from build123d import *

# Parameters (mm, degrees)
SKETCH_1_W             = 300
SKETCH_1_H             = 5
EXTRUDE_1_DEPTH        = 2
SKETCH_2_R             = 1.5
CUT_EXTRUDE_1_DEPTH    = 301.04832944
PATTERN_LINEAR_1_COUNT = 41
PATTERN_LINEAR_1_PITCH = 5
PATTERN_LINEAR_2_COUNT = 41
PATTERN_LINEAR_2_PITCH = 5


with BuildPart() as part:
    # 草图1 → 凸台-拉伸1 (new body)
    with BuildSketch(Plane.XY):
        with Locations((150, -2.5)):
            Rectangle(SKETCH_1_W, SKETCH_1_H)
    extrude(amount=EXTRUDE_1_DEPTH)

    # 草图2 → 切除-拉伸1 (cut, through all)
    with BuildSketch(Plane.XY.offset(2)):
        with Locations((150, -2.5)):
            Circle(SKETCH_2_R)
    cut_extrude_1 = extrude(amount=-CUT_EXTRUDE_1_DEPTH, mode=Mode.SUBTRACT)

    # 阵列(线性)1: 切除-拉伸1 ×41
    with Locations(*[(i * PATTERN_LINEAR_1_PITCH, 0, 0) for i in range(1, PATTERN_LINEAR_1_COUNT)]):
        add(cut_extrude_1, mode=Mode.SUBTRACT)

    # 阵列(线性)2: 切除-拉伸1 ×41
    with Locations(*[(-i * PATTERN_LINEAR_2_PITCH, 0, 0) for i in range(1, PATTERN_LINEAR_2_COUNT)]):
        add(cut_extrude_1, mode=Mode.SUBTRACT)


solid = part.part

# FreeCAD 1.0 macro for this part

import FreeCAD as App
import Part
import Sketcher
from FreeCAD import Vector
Q = App.Units.Quantity


def add_polygon(sketch, points):
    """Adds a closed chain of lines whose ends are joined by coincident constraints."""
    first, n = sketch.GeometryCount, len(points)
    for a, b in zip(points, points[1:] + points[:1]):
        sketch.addGeometry(Part.LineSegment(App.Vector(*a, 0), App.Vector(*b, 0)), False)
    for i in range(n):
        sketch.addConstraint(Sketcher.Constraint("Coincident", first + i, 2, first + (i + 1) % n, 1))

doc = App.newDocument("Part")
body = doc.addObject("PartDesign::Body", "Body")

sketch1 = body.newObject("Sketcher::SketchObject", "Sketch")
sketch1.AttachmentSupport = (doc.getObject("XY_Plane"), [""])
sketch1.MapMode = "FlatFace"
add_polygon(sketch1, [(0, 0), (0, -5), (300, -5), (300, 0)])
sketch1.addConstraint([
    Sketcher.Constraint("Vertical", 0),
    Sketcher.Constraint("Horizontal", 1),
    Sketcher.Constraint("Vertical", 2),
    Sketcher.Constraint("Horizontal", 3),
    Sketcher.Constraint("Coincident", 3, 2, -1, 1),
    Sketcher.Constraint("DistanceX", 1, 1, 1, 2, Q("300 mm")),
    Sketcher.Constraint("DistanceY", 0, 2, 0, 1, Q("5 mm")),
])
pad1 = body.newObject("PartDesign::Pad", "Pad")
pad1.Profile = sketch1
pad1.Length = 2

sketch2 = body.newObject("Sketcher::SketchObject", "Sketch001")
sketch2.AttachmentSupport = (doc.getObject("XY_Plane"), [""])
sketch2.MapMode = "FlatFace"
sketch2.AttachmentOffset = App.Placement(Vector(0, 0, 2), App.Rotation())
sketch2.addGeometry(Part.Circle(Vector(150, -2.5, 0), Vector(0, 0, 1), 1.5), False)
sketch2.addConstraint([
    Sketcher.Constraint("Diameter", 0, Q("3 mm")),
    Sketcher.Constraint("DistanceX", -1, 1, 0, 3, Q("150 mm")),
    Sketcher.Constraint("DistanceY", 0, 3, -1, 1, Q("2.5 mm")),
])
pocket1 = body.newObject("PartDesign::Pocket", "Pocket")
pocket1.Profile = sketch2
pocket1.Type = "ThroughAll"
doc.recompute()

linearpattern = body.newObject("PartDesign::LinearPattern", "LinearPattern")
linearpattern.Originals = [pocket1]
linearpattern.Direction = (doc.getObject("X_Axis"), [""])
linearpattern.Mode = "offset"
linearpattern.Offset = 5
linearpattern.Occurrences = 41
body.Tip = linearpattern
doc.recompute()

linearpattern2 = body.newObject("PartDesign::LinearPattern", "LinearPattern001")
linearpattern2.Originals = [pocket1]
linearpattern2.Direction = (doc.getObject("X_Axis"), [""])
linearpattern2.Mode = "offset"
linearpattern2.Offset = 5
linearpattern2.Occurrences = 41
linearpattern2.Reversed = True
body.Tip = linearpattern2

doc.recompute()
